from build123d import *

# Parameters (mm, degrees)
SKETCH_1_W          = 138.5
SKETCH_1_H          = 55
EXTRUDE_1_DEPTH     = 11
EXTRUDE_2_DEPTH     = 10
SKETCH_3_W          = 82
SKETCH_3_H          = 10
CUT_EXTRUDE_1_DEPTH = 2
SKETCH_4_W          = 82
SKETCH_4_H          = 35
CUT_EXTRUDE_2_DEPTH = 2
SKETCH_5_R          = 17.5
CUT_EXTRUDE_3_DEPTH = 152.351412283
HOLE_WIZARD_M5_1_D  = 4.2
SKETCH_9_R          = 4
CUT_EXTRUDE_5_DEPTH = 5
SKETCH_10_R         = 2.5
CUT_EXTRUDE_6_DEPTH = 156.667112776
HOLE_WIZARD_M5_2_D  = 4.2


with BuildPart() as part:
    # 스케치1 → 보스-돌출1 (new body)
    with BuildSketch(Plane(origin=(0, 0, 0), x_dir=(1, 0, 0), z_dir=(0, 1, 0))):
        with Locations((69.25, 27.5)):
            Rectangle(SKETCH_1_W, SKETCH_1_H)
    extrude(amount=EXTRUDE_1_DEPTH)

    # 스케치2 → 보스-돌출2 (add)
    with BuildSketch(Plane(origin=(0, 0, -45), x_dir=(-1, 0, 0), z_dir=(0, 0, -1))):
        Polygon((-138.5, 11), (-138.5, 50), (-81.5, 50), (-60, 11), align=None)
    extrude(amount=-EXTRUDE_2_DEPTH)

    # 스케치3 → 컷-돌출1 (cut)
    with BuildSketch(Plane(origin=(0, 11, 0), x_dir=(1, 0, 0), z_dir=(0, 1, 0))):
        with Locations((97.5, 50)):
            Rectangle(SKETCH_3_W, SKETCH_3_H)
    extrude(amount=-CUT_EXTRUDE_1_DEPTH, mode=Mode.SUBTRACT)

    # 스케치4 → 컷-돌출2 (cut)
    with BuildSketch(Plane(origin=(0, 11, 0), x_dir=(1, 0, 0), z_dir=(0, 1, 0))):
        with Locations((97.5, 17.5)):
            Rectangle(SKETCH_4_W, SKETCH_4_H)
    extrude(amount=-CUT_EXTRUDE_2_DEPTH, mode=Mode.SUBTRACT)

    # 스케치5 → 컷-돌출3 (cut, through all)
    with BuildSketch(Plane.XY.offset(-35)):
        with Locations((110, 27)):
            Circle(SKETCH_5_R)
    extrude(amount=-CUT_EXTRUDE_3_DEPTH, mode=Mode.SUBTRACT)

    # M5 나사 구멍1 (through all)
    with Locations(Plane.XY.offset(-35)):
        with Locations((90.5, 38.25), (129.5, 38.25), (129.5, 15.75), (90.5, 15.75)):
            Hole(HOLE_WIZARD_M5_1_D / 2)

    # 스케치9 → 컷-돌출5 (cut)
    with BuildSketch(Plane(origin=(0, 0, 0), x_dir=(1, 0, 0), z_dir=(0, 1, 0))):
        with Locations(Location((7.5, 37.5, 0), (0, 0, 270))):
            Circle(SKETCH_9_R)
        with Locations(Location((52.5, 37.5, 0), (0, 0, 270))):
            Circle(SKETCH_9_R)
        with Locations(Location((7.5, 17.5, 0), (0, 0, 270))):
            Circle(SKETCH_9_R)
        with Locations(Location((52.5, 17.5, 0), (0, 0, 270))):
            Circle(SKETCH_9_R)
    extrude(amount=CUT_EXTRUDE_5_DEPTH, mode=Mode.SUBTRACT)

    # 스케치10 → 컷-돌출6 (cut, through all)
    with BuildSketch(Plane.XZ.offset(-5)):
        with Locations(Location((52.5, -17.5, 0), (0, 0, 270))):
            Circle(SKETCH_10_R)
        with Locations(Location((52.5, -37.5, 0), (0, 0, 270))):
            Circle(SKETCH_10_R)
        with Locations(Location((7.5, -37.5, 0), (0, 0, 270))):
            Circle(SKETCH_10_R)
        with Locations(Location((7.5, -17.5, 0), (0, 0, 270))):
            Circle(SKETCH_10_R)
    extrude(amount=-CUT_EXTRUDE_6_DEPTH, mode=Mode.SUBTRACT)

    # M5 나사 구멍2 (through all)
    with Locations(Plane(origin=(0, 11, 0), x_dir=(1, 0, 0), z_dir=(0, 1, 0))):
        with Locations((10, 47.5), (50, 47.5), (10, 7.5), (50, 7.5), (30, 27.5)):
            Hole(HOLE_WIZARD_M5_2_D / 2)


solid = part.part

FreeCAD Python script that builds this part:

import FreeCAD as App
import Part
import Sketcher

doc = App.newDocument("Part")
body = doc.addObject("PartDesign::Body", "Body")

sketch1 = body.newObject("Sketcher::SketchObject", "Sketch")
sketch1.AttachmentSupport = (doc.getObject("XZ_Plane"), [""])
sketch1.MapMode = "FlatFace"
sketch1.addGeometry([
    Part.LineSegment(App.Vector(0, -55, 0), App.Vector(0, 0, 0)),
    Part.LineSegment(App.Vector(0, 0, 0), App.Vector(138, 0, 0)),
    Part.LineSegment(App.Vector(138, 0, 0), App.Vector(138, -55, 0)),
    Part.LineSegment(App.Vector(138, -55, 0), App.Vector(0, -55, 0)),
], False)
sketch1.addConstraint([
    Sketcher.Constraint("Coincident", 0, 2, 1, 1),
    Sketcher.Constraint("Coincident", 1, 2, 2, 1),
    Sketcher.Constraint("Coincident", 2, 2, 3, 1),
    Sketcher.Constraint("Coincident", 3, 2, 0, 1),
    Sketcher.Constraint("Vertical", 0),
    Sketcher.Constraint("Horizontal", 1),
    Sketcher.Constraint("Vertical", 2),
    Sketcher.Constraint("Horizontal", 3),
    Sketcher.Constraint("Coincident", 0, 2, -1, 1),
    Sketcher.Constraint("DistanceY", 0, 1, 0, 2, 55.0),
    Sketcher.Constraint("DistanceX", 1, 1, 1, 2, 138.5),
])
pad1 = body.newObject("PartDesign::Pad", "Pad")
pad1.Profile = sketch1
pad1.Length = 11
pad1.Reversed = True

sketch2 = body.newObject("Sketcher::SketchObject", "Sketch001")
sketch2.AttachmentSupport = (doc.getObject("XY_Plane"), [""])
sketch2.MapMode = "FlatFace"
sketch2.AttachmentOffset = App.Placement(App.Vector(0, 0, -45), App.Rotation())
sketch2.addGeometry([
    Part.LineSegment(App.Vector(138, 50, 0), App.Vector(138, 11, 0)),
    Part.LineSegment(App.Vector(138, 11, 0), App.Vector(60, 11, 0)),
    Part.LineSegment(App.Vector(60, 11, 0), App.Vector(82, 50, 0)),
    Part.LineSegment(App.Vector(82, 50, 0), App.Vector(138, 50, 0)),
], False)
sketch2.addConstraint([
    Sketcher.Constraint("Coincident", 0, 2, 1, 1),
    Sketcher.Constraint("Coincident", 1, 2, 2, 1),
    Sketcher.Constraint("Coincident", 2, 2, 3, 1),
    Sketcher.Constraint("Coincident", 3, 2, 0, 1),
    Sketcher.Constraint("Vertical", 0),
    Sketcher.Constraint("Horizontal", 1),
    Sketcher.Constraint("Horizontal", 3),
    Sketcher.Constraint("DistanceX", 3, 1, 3, 2, 57.0),
    Sketcher.Constraint("DistanceY", 0, 2, 0, 1, 39.0),
    Sketcher.Constraint("DistanceX", 1, 2, 1, 1, 78.5),
    Sketcher.Constraint("DistanceY", -1, 1, 0, 2, 11.0),
    Sketcher.Constraint("DistanceX", -1, 1, 1, 2, 60.0),
])
pad2 = body.newObject("PartDesign::Pad", "Pad001")
pad2.Profile = sketch2
pad2.Length = 10

sketch3 = body.newObject("Sketcher::SketchObject", "Sketch002")
sketch3.AttachmentSupport = (doc.getObject("XZ_Plane"), [""])
sketch3.MapMode = "FlatFace"
sketch3.AttachmentOffset = App.Placement(App.Vector(0, 0, -11), App.Rotation())
sketch3.addGeometry([
    Part.LineSegment(App.Vector(56, -55, 0), App.Vector(56, -45, 0)),
    Part.LineSegment(App.Vector(56, -45, 0), App.Vector(138, -45, 0)),
    Part.LineSegment(App.Vector(138, -45, 0), App.Vector(138, -55, 0)),
    Part.LineSegment(App.Vector(138, -55, 0), App.Vector(56, -55, 0)),
], False)
sketch3.addConstraint([
    Sketcher.Constraint("Coincident", 0, 2, 1, 1),
    Sketcher.Constraint("Coincident", 1, 2, 2, 1),
    Sketcher.Constraint("Coincident", 2, 2, 3, 1),
    Sketcher.Constraint("Coincident", 3, 2, 0, 1),
    Sketcher.Constraint("Vertical", 0),
    Sketcher.Constraint("Horizontal", 1),
    Sketcher.Constraint("Vertical", 2),
    Sketcher.Constraint("Horizontal", 3),
    Sketcher.Constraint("DistanceX", 1, 1, 1, 2, 82.0),
    Sketcher.Constraint("DistanceY", 0, 1, 0, 2, 10.0),
    Sketcher.Constraint("DistanceY", 0, 2, -1, 1, 45.0),
    Sketcher.Constraint("DistanceX", -1, 1, 0, 2, 56.5),
])
pocket1 = body.newObject("PartDesign::Pocket", "Pocket")
pocket1.Profile = sketch3
pocket1.Length = 2
pocket1.Reversed = True

sketch4 = body.newObject("Sketcher::SketchObject", "Sketch003")
sketch4.AttachmentSupport = (doc.getObject("XZ_Plane"), [""])
sketch4.MapMode = "FlatFace"
sketch4.AttachmentOffset = App.Placement(App.Vector(0, 0, -11), App.Rotation())
sketch4.addGeometry([
    Part.LineSegment(App.Vector(56, -35, 0), App.Vector(56, 0, 0)),
    Part.LineSegment(App.Vector(56, 0, 0), App.Vector(138, 0, 0)),
    Part.LineSegment(App.Vector(138, 0, 0), App.Vector(138, -35, 0)),
    Part.LineSegment(App.Vector(138, -35, 0), App.Vector(56, -35, 0)),
], False)
sketch4.addConstraint([
    Sketcher.Constraint("Coincident", 0, 2, 1, 1),
    Sketcher.Constraint("Coincident", 1, 2, 2, 1),
    Sketcher.Constraint("Coincident", 2, 2, 3, 1),
    Sketcher.Constraint("Coincident", 3, 2, 0, 1),
    Sketcher.Constraint("Vertical", 0),
    Sketcher.Constraint("Horizontal", 1),
    Sketcher.Constraint("Vertical", 2),
    Sketcher.Constraint("Horizontal", 3),
    Sketcher.Constraint("PointOnObject", 0, 2, -1),
    Sketcher.Constraint("DistanceX", 1, 1, 1, 2, 82.0),
    Sketcher.Constraint("DistanceY", 0, 1, 0, 2, 35.0),
    Sketcher.Constraint("DistanceX", -1, 1, 0, 2, 56.5),
])
pocket2 = body.newObject("PartDesign::Pocket", "Pocket001")
pocket2.Profile = sketch4
pocket2.Length = 2
pocket2.Reversed = True

sketch5 = body.newObject("Sketcher::SketchObject", "Sketch004")
sketch5.AttachmentSupport = (doc.getObject("XY_Plane"), [""])
sketch5.MapMode = "FlatFace"
sketch5.AttachmentOffset = App.Placement(App.Vector(0, 0, -35), App.Rotation())
sketch5.addGeometry(Part.Circle(App.Vector(110, 27, 0), App.Vector(0, 0, 1), 18), False)
sketch5.addConstraint([
    Sketcher.Constraint("Diameter", 0, 35.0),
    Sketcher.Constraint("DistanceX", -1, 1, 0, 3, 110.0),
    Sketcher.Constraint("DistanceY", -1, 1, 0, 3, 27.0),
])
pocket3 = body.newObject("PartDesign::Pocket", "Pocket002")
pocket3.Profile = sketch5
pocket3.Type = "ThroughAll"

sketch6 = body.newObject("Sketcher::SketchObject", "Sketch005")
sketch6.AttachmentSupport = (doc.getObject("XY_Plane"), [""])
sketch6.MapMode = "FlatFace"
sketch6.AttachmentOffset = App.Placement(App.Vector(0, 0, -35), App.Rotation())
sketch6.addGeometry([
    Part.Circle(App.Vector(90.5, 38.2, 0), App.Vector(0, 0, 1), 2.1),
    Part.Circle(App.Vector(129.5, 38.2, 0), App.Vector(0, 0, 1), 2.1),
    Part.Circle(App.Vector(129.5, 15.8, 0), App.Vector(0, 0, 1), 2.1),
    Part.Circle(App.Vector(90.5, 15.8, 0), App.Vector(0, 0, 1), 2.1),
], False)
sketch6.addConstraint([
    Sketcher.Constraint("Equal", 0, 1),
    Sketcher.Constraint("Equal", 1, 2),
    Sketcher.Constraint("Equal", 2, 3),
    Sketcher.Constraint("Horizontal", 0, 3, 1, 3),
    Sketcher.Constraint("Horizontal", 2, 3, 3, 3),
    Sketcher.Constraint("Vertical", 1, 3, 2, 3),
    Sketcher.Constraint("Vertical", 0, 3, 3, 3),
    Sketcher.Constraint("Diameter", 0, 4.2),
    Sketcher.Constraint("DistanceX", 0, 3, 1, 3, 39.0),
    Sketcher.Constraint("DistanceX", -1, 1, 0, 3, 90.5),
    Sketcher.Constraint("DistanceY", 2, 3, 1, 3, 22.5),
    Sketcher.Constraint("DistanceY", -1, 1, 0, 3, 38.25),
])
doc.recompute()
hole = body.newObject("PartDesign::Hole", "Hole")
hole.Profile = sketch6
hole.ThreadType = "None"
hole.Diameter = 4.2
hole.DepthType = "ThroughAll"

sketch7 = body.newObject("Sketcher::SketchObject", "Sketch006")
sketch7.AttachmentSupport = (doc.getObject("XZ_Plane"), [""])
sketch7.MapMode = "FlatFace"
sketch7.addGeometry([
    Part.Circle(App.Vector(7.5, -37.5, 0), App.Vector(0, 0, 1), 4),
    Part.Circle(App.Vector(52.5, -37.5, 0), App.Vector(0, 0, 1), 4),
    Part.Circle(App.Vector(7.5, -17.5, 0), App.Vector(0, 0, 1), 4),
    Part.Circle(App.Vector(52.5, -17.5, 0), App.Vector(0, 0, 1), 4),
], False)
sketch7.addConstraint([
    Sketcher.Constraint("Equal", 0, 1),
    Sketcher.Constraint("Equal", 1, 2),
    Sketcher.Constraint("Equal", 2, 3),
    Sketcher.Constraint("Horizontal", 0, 3, 1, 3),
    Sketcher.Constraint("Horizontal", 2, 3, 3, 3),
    Sketcher.Constraint("Vertical", 0, 3, 2, 3),
    Sketcher.Constraint("Vertical", 1, 3, 3, 3),
    Sketcher.Constraint("Diameter", 0, 8.0),
    Sketcher.Constraint("DistanceX", 0, 3, 1, 3, 45.0),
    Sketcher.Constraint("DistanceY", 0, 3, 2, 3, 20.0),
    Sketcher.Constraint("DistanceX", -1, 1, 0, 3, 7.5),
    Sketcher.Constraint("DistanceY", 0, 3, -1, 1, 37.5),
])
pocket4 = body.newObject("PartDesign::Pocket", "Pocket003")
pocket4.Profile = sketch7
pocket4.Length = 5

sketch8 = body.newObject("Sketcher::SketchObject", "Sketch007")
sketch8.AttachmentSupport = (doc.getObject("XZ_Plane"), [""])
sketch8.MapMode = "FlatFace"
sketch8.AttachmentOffset = App.Placement(App.Vector(0, 0, -5), App.Rotation())
sketch8.addGeometry([
    Part.Circle(App.Vector(52.5, -17.5, 0), App.Vector(0, 0, 1), 2.5),
    Part.Circle(App.Vector(52.5, -37.5, 0), App.Vector(0, 0, 1), 2.5),
    Part.Circle(App.Vector(7.5, -37.5, 0), App.Vector(0, 0, 1), 2.5),
    Part.Circle(App.Vector(7.5, -17.5, 0), App.Vector(0, 0, 1), 2.5),
], False)
sketch8.addConstraint([
    Sketcher.Constraint("Equal", 0, 1),
    Sketcher.Constraint("Equal", 1, 2),
    Sketcher.Constraint("Equal", 2, 3),
    Sketcher.Constraint("Horizontal", 1, 3, 2, 3),
    Sketcher.Constraint("Horizontal", 0, 3, 3, 3),
    Sketcher.Constraint("Vertical", 0, 3, 1, 3),
    Sketcher.Constraint("Vertical", 2, 3, 3, 3),
    Sketcher.Constraint("Diameter", 0, 5.0),
    Sketcher.Constraint("DistanceY", 1, 3, 0, 3, 20.0),
    Sketcher.Constraint("DistanceX", 2, 3, 1, 3, 45.0),
    Sketcher.Constraint("DistanceX", -1, 1, 0, 3, 52.5),
    Sketcher.Constraint("DistanceY", 0, 3, -1, 1, 17.5),
])
pocket5 = body.newObject("PartDesign::Pocket", "Pocket004")
pocket5.Profile = sketch8
pocket5.Type = "ThroughAll"

sketch9 = body.newObject("Sketcher::SketchObject", "Sketch008")
sketch9.AttachmentSupport = (doc.getObject("XZ_Plane"), [""])
sketch9.MapMode = "FlatFace"
sketch9.AttachmentOffset = App.Placement(App.Vector(0, 0, -11), App.Rotation())
sketch9.addGeometry([
    Part.Circle(App.Vector(10, -47.5, 0), App.Vector(0, 0, 1), 2.1),
    Part.Circle(App.Vector(50, -47.5, 0), App.Vector(0, 0, 1), 2.1),
    Part.Circle(App.Vector(10, -7.5, 0), App.Vector(0, 0, 1), 2.1),
    Part.Circle(App.Vector(50, -7.5, 0), App.Vector(0, 0, 1), 2.1),
    Part.Circle(App.Vector(30, -27.5, 0), App.Vector(0, 0, 1), 2.1),
], False)
sketch9.addConstraint([
    Sketcher.Constraint("Equal", 0, 1),
    Sketcher.Constraint("Equal", 1, 2),
    Sketcher.Constraint("Equal", 2, 3),
    Sketcher.Constraint("Equal", 3, 4),
    Sketcher.Constraint("Horizontal", 0, 3, 1, 3),
    Sketcher.Constraint("Horizontal", 2, 3, 3, 3),
    Sketcher.Constraint("Vertical", 0, 3, 2, 3),
    Sketcher.Constraint("Vertical", 1, 3, 3, 3),
    Sketcher.Constraint("Diameter", 0, 4.2),
    Sketcher.Constraint("DistanceX", -1, 1, 0, 3, 10.0),
    Sketcher.Constraint("DistanceX", -1, 1, 1, 3, 50.0),
    Sketcher.Constraint("DistanceX", -1, 1, 4, 3, 30.0),
    Sketcher.Constraint("DistanceY", 0, 3, 2, 3, 40.0),
    Sketcher.Constraint("DistanceY", 0, 3, 4, 3, 20.0),
    Sketcher.Constraint("DistanceY", 0, 3, -1, 1, 47.5),
])
doc.recompute()
hole2 = body.newObject("PartDesign::Hole", "Hole001")
hole2.Profile = sketch9
hole2.ThreadType = "None"
hole2.Diameter = 4.2
hole2.DepthType = "ThroughAll"
hole2.Reversed = True

doc.recompute()
